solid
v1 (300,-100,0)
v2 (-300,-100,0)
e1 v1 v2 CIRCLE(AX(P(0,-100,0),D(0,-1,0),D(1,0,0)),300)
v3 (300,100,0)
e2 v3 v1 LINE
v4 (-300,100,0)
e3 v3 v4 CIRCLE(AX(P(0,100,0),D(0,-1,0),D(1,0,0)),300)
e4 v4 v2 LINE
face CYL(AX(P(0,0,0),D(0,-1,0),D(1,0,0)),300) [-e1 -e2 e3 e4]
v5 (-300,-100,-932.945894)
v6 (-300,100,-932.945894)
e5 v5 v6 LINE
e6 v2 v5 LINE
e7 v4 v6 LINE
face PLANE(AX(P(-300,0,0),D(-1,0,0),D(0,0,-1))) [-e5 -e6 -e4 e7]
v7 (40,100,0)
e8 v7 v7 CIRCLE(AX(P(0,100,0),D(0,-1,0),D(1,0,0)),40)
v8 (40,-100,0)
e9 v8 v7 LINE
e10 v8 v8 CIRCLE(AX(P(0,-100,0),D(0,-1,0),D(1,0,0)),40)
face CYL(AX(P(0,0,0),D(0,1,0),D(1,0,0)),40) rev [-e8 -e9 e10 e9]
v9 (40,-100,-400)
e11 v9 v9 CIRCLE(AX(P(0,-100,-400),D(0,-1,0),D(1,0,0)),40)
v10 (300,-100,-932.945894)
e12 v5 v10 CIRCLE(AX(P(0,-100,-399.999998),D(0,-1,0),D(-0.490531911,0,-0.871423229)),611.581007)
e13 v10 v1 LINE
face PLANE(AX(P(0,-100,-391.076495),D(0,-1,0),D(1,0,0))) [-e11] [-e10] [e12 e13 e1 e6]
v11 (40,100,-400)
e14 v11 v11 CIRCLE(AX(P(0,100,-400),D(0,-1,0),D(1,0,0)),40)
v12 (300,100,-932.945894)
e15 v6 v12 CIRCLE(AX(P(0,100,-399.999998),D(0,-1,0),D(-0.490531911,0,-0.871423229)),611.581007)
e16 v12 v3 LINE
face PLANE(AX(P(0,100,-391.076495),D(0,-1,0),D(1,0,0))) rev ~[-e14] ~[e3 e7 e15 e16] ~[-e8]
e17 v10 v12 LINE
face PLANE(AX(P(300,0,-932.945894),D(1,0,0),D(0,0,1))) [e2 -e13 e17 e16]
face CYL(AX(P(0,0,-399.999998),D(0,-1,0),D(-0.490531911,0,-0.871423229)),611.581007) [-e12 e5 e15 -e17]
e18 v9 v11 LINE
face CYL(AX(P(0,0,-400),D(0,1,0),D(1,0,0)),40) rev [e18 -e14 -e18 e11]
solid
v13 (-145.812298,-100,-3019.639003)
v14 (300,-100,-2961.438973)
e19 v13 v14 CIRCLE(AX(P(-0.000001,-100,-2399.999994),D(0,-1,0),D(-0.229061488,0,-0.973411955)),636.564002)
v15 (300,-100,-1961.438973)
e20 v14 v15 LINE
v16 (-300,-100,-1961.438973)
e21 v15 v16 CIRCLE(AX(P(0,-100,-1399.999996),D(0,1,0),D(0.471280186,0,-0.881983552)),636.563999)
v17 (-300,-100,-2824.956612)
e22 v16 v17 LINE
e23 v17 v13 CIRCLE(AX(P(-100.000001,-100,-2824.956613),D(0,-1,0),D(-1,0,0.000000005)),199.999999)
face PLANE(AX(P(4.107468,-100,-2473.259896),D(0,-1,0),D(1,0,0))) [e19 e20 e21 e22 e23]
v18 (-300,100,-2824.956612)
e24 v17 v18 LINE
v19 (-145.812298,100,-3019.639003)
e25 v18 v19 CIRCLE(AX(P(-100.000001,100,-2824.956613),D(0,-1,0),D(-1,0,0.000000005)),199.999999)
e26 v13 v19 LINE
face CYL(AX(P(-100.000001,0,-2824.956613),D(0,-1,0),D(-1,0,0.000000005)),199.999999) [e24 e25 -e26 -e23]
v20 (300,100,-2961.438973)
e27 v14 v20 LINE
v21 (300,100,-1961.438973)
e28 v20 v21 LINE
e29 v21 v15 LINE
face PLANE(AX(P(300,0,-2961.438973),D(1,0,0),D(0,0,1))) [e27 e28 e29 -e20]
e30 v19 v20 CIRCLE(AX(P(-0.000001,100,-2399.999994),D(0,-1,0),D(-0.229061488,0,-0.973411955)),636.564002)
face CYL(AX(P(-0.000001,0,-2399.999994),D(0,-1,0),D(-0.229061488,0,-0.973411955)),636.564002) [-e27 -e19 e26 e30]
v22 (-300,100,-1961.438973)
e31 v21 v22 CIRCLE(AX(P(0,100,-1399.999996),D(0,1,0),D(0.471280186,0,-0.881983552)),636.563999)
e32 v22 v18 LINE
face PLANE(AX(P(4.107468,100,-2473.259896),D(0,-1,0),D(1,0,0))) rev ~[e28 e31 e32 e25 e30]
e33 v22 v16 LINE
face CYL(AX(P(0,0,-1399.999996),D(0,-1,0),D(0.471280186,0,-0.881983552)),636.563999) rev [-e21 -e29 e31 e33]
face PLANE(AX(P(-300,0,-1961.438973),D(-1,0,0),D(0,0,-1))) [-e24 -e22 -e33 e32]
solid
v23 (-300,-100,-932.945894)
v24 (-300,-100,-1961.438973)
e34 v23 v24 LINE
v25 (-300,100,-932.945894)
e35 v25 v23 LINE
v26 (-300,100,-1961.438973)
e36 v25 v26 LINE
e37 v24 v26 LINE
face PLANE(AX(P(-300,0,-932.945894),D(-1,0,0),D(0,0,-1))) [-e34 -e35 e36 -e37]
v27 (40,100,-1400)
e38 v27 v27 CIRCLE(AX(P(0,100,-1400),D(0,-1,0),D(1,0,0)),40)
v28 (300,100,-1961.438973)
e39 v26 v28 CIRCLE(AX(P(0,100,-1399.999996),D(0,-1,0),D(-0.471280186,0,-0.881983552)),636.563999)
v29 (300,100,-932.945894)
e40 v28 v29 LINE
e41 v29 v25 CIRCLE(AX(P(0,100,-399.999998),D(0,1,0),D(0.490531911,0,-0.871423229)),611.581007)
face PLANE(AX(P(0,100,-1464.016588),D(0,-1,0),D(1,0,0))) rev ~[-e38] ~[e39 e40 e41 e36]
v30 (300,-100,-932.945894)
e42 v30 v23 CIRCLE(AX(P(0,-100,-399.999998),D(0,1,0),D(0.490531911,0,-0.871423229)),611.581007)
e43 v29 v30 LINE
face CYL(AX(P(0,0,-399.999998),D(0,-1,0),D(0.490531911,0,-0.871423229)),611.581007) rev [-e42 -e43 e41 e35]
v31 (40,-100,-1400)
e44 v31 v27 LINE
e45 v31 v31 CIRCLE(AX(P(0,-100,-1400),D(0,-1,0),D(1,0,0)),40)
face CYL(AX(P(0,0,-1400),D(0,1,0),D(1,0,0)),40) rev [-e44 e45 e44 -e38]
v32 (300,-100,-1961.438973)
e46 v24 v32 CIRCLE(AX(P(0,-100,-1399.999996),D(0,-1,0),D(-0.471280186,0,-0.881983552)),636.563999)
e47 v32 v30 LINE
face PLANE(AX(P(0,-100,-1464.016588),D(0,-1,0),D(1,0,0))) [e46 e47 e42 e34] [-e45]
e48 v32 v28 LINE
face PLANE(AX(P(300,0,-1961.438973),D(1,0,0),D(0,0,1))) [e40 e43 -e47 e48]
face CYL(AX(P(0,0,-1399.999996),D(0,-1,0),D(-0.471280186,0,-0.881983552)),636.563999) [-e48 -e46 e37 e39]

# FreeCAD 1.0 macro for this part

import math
import FreeCAD as App
import Part
import Sketcher
from FreeCAD import Vector

doc = App.newDocument("Part")
params = doc.addObject("Spreadsheet::Sheet", "Params")
for row, (alias, value) in enumerate([
    ("sketch1_diameter", "80 mm"),
    ("sketch1_radius", "300 mm"),
    ("pad1_length", "200 mm"),
    ("sketch2_diameter", "80 mm"),
    ("pad2_length", "200 mm"),
    ("sketch3_radius", "199.999999 mm"),
    ("sketch3_height", "1000 mm"),
    ("pad3_length", "200 mm"),
], start=1):
    params.set(f"A{row}", alias)
    params.set(f"B{row}", "=" + value)
    params.setAlias(f"B{row}", alias)

body = doc.addObject("PartDesign::Body", "Body")

sketch1 = doc.addObject("Sketcher::SketchObject", "Sketch")
body.addObject(sketch1)
sketch1.AttachmentSupport = (doc.XZ_Plane, [""])
sketch1.MapMode = "FlatFace"
sketch1.addGeometry([
    Part.LineSegment(Vector(300, -932.945894, 0), Vector(300, 0, 0)),
    Part.ArcOfCircle(Part.Circle(Vector(0, 0, 0), Vector(0, 0, 1), 300), math.radians(0), math.radians(180)),
    Part.LineSegment(Vector(-300, 0, 0), Vector(-300, -932.945894, 0)),
    Part.ArcOfCircle(Part.Circle(Vector(0, -399.999998, 0), Vector(0, 0, 1), 611.581007), math.radians(-119.375549), math.radians(-60.624451)),
    Part.Circle(Vector(0, -400, 0), Vector(0, 0, 1), 40),
    Part.Circle(Vector(0, 0, 0), Vector(0, 0, 1), 40),
], False)
sketch1.addConstraint([
    Sketcher.Constraint("Tangent", 0, 2, 1, 1),
    Sketcher.Constraint("Tangent", 1, 2, 2, 1),
    Sketcher.Constraint("Coincident", 2, 2, 3, 1),
    Sketcher.Constraint("Coincident", 3, 2, 0, 1),
    Sketcher.Constraint("Vertical", 0),
    Sketcher.Constraint("Vertical", 2),
    Sketcher.Constraint("Coincident", 1, 3, -1, 1),
    Sketcher.Constraint("Coincident", 5, 3, -1, 1),
    Sketcher.Constraint("Coincident", 4, 3, 3, 3),
    Sketcher.Constraint("Equal", 4, 5),
    Sketcher.Constraint("PointOnObject", 3, 3, -2),
    Sketcher.Constraint("Diameter", 4, 80.0),
    Sketcher.Constraint("Radius", 1, 300.0),
    Sketcher.Constraint("DistanceY", 3, 3, -1, 1, 399.999998),
    Sketcher.Constraint("Radius", 3, 611.581007),
])
sketch1.setExpression("Constraints[11]", "Params.sketch1_diameter")
sketch1.setExpression("Constraints[12]", "Params.sketch1_radius")
pad1 = doc.addObject("PartDesign::Pad", "Pad")
body.addObject(pad1)
pad1.Profile = sketch1
pad1.setExpression("Length", "Params.pad1_length")
pad1.Midplane = True
body2 = doc.addObject("PartDesign::Body", "Body001")

sketch2 = doc.addObject("Sketcher::SketchObject", "Sketch001")
body2.addObject(sketch2)
sketch2.AttachmentSupport = (doc.getObject("XZ_Plane001"), [""])
sketch2.MapMode = "FlatFace"
sketch2.addGeometry([
    Part.LineSegment(Vector(300, -1961.438973, 0), Vector(300, -932.945894, 0)),
    Part.ArcOfCircle(Part.Circle(Vector(0, -399.999998, 0), Vector(0, 0, 1), 611.581007), math.radians(-119.375549), math.radians(-60.624451)),
    Part.LineSegment(Vector(-300, -932.945894, 0), Vector(-300, -1961.438973, 0)),
    Part.ArcOfCircle(Part.Circle(Vector(0, -1399.999996, 0), Vector(0, 0, 1), 636.563999), math.radians(-118.117428), math.radians(-61.882572)),
    Part.Circle(Vector(0, -1400, 0), Vector(0, 0, 1), 40),
], False)
sketch2.addConstraint([
    Sketcher.Constraint("Coincident", 0, 2, 1, 2),
    Sketcher.Constraint("Coincident", 1, 1, 2, 1),
    Sketcher.Constraint("Coincident", 2, 2, 3, 1),
    Sketcher.Constraint("Coincident", 3, 2, 0, 1),
    Sketcher.Constraint("Vertical", 0),
    Sketcher.Constraint("Vertical", 2),
    Sketcher.Constraint("Coincident", 4, 3, 3, 3),
    Sketcher.Constraint("PointOnObject", 1, 3, -2),
    Sketcher.Constraint("PointOnObject", 3, 3, -2),
    Sketcher.Constraint("Equal", 0, 2),
    Sketcher.Constraint("Diameter", 4, 80.0),
    Sketcher.Constraint("DistanceY", 1, 3, -1, 1, 399.999998),
    Sketcher.Constraint("DistanceY", 4, 3, -1, 1, 1400.0),
    Sketcher.Constraint("DistanceX", -1, 1, 0, 2, 300.0),
    Sketcher.Constraint("Radius", 3, 636.563999),
    Sketcher.Constraint("Radius", 1, 611.581007),
])
sketch2.setExpression("Constraints[10]", "Params.sketch2_diameter")
pad2 = doc.addObject("PartDesign::Pad", "Pad001")
body2.addObject(pad2)
pad2.Profile = sketch2
pad2.setExpression("Length", "Params.pad2_length")
pad2.Midplane = True
body3 = doc.addObject("PartDesign::Body", "Body002")

sketch3 = doc.addObject("Sketcher::SketchObject", "Sketch002")
body3.addObject(sketch3)
sketch3.AttachmentSupport = (doc.getObject("XZ_Plane002"), [""])
sketch3.MapMode = "FlatFace"
sketch3.addGeometry([
    Part.LineSegment(Vector(300, -2961.438973, 0), Vector(300, -1961.438973, 0)),
    Part.ArcOfCircle(Part.Circle(Vector(0, -1399.999996, 0), Vector(0, 0, 1), 636.563999), math.radians(-118.117428), math.radians(-61.882572)),
    Part.LineSegment(Vector(-300, -1961.438973, 0), Vector(-300, -2824.956612, 0)),
    Part.ArcOfCircle(Part.Circle(Vector(-100.000001, -2824.956613, 0), Vector(0, 0, 1), 199.999999), math.radians(180), math.radians(256.758176)),
    Part.ArcOfCircle(Part.Circle(Vector(-0.000001, -2399.999994, 0), Vector(0, 0, 1), 636.564002), math.radians(-103.241824), math.radians(-61.882572)),
], False)
sketch3.addConstraint([
    Sketcher.Constraint("Coincident", 0, 2, 1, 2),
    Sketcher.Constraint("Coincident", 1, 1, 2, 1),
    Sketcher.Constraint("Tangent", 2, 2, 3, 1),
    Sketcher.Constraint("Tangent", 3, 2, 4, 1),
    Sketcher.Constraint("Coincident", 4, 2, 0, 1),
    Sketcher.Constraint("Vertical", 0),
    Sketcher.Constraint("Vertical", 2),
    Sketcher.Constraint("PointOnObject", 1, 3, -2),
    Sketcher.Constraint("PointOnObject", 4, 3, -2),
    Sketcher.Constraint("Radius", 3, 199.999999),
    Sketcher.Constraint("DistanceY", 0, 1, 0, 2, 1000.0),
    Sketcher.Constraint("DistanceX", 3, 3, -1, 1, 100.000001),
    Sketcher.Constraint("DistanceX", -1, 1, 0, 2, 300.0),
    Sketcher.Constraint("Radius", 1, 636.563999),
    Sketcher.Constraint("Radius", 4, 636.564002),
    Sketcher.Constraint("DistanceY", 2, 2, -1, 1, 2824.956612),
])
sketch3.setExpression("Constraints[9]", "Params.sketch3_radius")
sketch3.setExpression("Constraints[10]", "Params.sketch3_height")
pad3 = doc.addObject("PartDesign::Pad", "Pad002")
body3.addObject(pad3)
pad3.Profile = sketch3
pad3.setExpression("Length", "Params.pad3_length")
pad3.Midplane = True

doc.recompute()
